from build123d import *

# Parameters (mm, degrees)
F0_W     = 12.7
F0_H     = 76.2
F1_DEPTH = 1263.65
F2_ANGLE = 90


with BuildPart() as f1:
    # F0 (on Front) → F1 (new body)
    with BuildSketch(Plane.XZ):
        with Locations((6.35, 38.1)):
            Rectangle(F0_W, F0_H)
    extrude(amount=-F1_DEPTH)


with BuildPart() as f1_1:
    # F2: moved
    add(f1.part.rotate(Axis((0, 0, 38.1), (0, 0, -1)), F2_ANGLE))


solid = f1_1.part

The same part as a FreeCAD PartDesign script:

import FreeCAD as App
import Part
import Sketcher
Q = App.Units.Quantity

doc = App.newDocument("Part")
params = doc.addObject("Spreadsheet::Sheet", "Params")
for row, (alias, value) in enumerate([
    ("sketch1_height", "3 in"),
    ("sketch1_width", "0.5 in"),
    ("pad1_length", "49.75 in"),
], start=1):
    params.set(f"A{row}", alias)
    params.set(f"B{row}", "=" + value)
    params.setAlias(f"B{row}", alias)

body = doc.addObject("PartDesign::Body", "Body")

# Sketch on XZ plane
sketch1 = doc.addObject("Sketcher::SketchObject", "Sketch")
body.addObject(sketch1)
sketch1.AttachmentSupport = (doc.XZ_Plane, [""])
sketch1.MapMode = "FlatFace"
sketch1.addGeometry(Part.LineSegment(App.Vector(0, 76, 0), App.Vector(0, 0, 0)), False)
sketch1.addGeometry(Part.LineSegment(App.Vector(0, 0, 0), App.Vector(13, 0, 0)), False)
sketch1.addGeometry(Part.LineSegment(App.Vector(13, 0, 0), App.Vector(13, 76, 0)), False)
sketch1.addGeometry(Part.LineSegment(App.Vector(13, 76, 0), App.Vector(0, 76, 0)), False)
sketch1.addConstraint(Sketcher.Constraint("Coincident", 0, 2, 1, 1))
sketch1.addConstraint(Sketcher.Constraint("Coincident", 1, 2, 2, 1))
sketch1.addConstraint(Sketcher.Constraint("Coincident", 2, 2, 3, 1))
sketch1.addConstraint(Sketcher.Constraint("Coincident", 3, 2, 0, 1))
sketch1.addConstraint(Sketcher.Constraint("Vertical", 0))
sketch1.addConstraint(Sketcher.Constraint("Horizontal", 1))
sketch1.addConstraint(Sketcher.Constraint("Vertical", 2))
sketch1.addConstraint(Sketcher.Constraint("Horizontal", 3))
sketch1.addConstraint(Sketcher.Constraint("Coincident", 0, 2, -1, 1))
sketch1.addConstraint(Sketcher.Constraint("DistanceY", 0, 2, 0, 1, Q("3 in")))
sketch1.addConstraint(Sketcher.Constraint("DistanceX", 1, 1, 1, 2, Q("0.5 in")))
sketch1.setExpression("Constraints[9]", "Params.sketch1_height")
sketch1.setExpression("Constraints[10]", "Params.sketch1_width")
pad1 = doc.addObject("PartDesign::Pad", "Pad")
body.addObject(pad1)
pad1.Profile = sketch1
pad1.setExpression("Length", "Params.pad1_length")
pad1.Reversed = True
body2 = doc.addObject("PartDesign::Body", "Body001")
doc.recompute()

body.Placement = App.Placement(App.Vector(0, 0, 0), App.Rotation(App.Vector(0, 0, -1), 90))
boolean = doc.addObject("PartDesign::Boolean", "Boolean")
body2.addObject(boolean)
boolean.Type = "Fuse"
boolean.addObjects([body])

doc.recompute()
